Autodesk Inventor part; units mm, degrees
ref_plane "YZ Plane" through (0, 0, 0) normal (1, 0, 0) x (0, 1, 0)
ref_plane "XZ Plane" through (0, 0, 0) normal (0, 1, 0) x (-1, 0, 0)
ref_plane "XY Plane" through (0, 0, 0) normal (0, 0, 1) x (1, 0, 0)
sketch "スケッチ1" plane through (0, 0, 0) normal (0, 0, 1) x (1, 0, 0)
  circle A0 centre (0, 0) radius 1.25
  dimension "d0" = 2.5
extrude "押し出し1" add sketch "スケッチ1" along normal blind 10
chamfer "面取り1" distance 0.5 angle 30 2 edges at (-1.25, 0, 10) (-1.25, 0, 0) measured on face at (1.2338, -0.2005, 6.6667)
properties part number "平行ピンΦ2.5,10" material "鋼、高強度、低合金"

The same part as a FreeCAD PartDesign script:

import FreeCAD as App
import Part
import Sketcher
from FreeCAD import Vector


def edges_at(feature, points):
    """Names of the edges that pass closest to the given points."""
    edges = feature.Shape.Edges
    near = lambda p: min(range(len(edges)), key=lambda i: edges[i].distToShape(Part.Vertex(*p))[0])
    return sorted({f"Edge{near(p) + 1}" for p in points})

doc = App.newDocument("Part")
params = doc.addObject("Spreadsheet::Sheet", "Params")
for row, (alias, value) in enumerate([
    ("sketch1_diameter", "2.5 mm"),
    ("pad1_length", "10 mm"),
    ("chamfer_size", "0.5 mm"),
], start=1):
    params.set(f"A{row}", alias)
    params.set(f"B{row}", "=" + value)
    params.setAlias(f"B{row}", alias)

body = doc.addObject("PartDesign::Body", "Body")

sketch1 = body.newObject("Sketcher::SketchObject", "Sketch")
sketch1.AttachmentSupport = (doc.getObject("XY_Plane"), [""])
sketch1.MapMode = "FlatFace"
sketch1.addGeometry(Part.Circle(Vector(0, 0, 0), Vector(0, 0, 1), 1.25), False)
sketch1.addConstraint([
    Sketcher.Constraint("Coincident", 0, 3, -1, 1),
    Sketcher.Constraint("Diameter", 0, 2.5),
])
sketch1.setExpression("Constraints[1]", "Params.sketch1_diameter")
pad1 = body.newObject("PartDesign::Pad", "Pad")
pad1.Profile = sketch1
pad1.setExpression("Length", "Params.pad1_length")
doc.recompute()

chamfer = body.newObject("PartDesign::Chamfer", "Chamfer")
chamfer.Base = (pad1, edges_at(pad1, [(-1.25, 0, 10), (-1.25, 0, 0)]))
chamfer.ChamferType = "Distance and Angle"
chamfer.setExpression("Size", "Params.chamfer_size")
chamfer.Angle = 30

doc.recompute()
